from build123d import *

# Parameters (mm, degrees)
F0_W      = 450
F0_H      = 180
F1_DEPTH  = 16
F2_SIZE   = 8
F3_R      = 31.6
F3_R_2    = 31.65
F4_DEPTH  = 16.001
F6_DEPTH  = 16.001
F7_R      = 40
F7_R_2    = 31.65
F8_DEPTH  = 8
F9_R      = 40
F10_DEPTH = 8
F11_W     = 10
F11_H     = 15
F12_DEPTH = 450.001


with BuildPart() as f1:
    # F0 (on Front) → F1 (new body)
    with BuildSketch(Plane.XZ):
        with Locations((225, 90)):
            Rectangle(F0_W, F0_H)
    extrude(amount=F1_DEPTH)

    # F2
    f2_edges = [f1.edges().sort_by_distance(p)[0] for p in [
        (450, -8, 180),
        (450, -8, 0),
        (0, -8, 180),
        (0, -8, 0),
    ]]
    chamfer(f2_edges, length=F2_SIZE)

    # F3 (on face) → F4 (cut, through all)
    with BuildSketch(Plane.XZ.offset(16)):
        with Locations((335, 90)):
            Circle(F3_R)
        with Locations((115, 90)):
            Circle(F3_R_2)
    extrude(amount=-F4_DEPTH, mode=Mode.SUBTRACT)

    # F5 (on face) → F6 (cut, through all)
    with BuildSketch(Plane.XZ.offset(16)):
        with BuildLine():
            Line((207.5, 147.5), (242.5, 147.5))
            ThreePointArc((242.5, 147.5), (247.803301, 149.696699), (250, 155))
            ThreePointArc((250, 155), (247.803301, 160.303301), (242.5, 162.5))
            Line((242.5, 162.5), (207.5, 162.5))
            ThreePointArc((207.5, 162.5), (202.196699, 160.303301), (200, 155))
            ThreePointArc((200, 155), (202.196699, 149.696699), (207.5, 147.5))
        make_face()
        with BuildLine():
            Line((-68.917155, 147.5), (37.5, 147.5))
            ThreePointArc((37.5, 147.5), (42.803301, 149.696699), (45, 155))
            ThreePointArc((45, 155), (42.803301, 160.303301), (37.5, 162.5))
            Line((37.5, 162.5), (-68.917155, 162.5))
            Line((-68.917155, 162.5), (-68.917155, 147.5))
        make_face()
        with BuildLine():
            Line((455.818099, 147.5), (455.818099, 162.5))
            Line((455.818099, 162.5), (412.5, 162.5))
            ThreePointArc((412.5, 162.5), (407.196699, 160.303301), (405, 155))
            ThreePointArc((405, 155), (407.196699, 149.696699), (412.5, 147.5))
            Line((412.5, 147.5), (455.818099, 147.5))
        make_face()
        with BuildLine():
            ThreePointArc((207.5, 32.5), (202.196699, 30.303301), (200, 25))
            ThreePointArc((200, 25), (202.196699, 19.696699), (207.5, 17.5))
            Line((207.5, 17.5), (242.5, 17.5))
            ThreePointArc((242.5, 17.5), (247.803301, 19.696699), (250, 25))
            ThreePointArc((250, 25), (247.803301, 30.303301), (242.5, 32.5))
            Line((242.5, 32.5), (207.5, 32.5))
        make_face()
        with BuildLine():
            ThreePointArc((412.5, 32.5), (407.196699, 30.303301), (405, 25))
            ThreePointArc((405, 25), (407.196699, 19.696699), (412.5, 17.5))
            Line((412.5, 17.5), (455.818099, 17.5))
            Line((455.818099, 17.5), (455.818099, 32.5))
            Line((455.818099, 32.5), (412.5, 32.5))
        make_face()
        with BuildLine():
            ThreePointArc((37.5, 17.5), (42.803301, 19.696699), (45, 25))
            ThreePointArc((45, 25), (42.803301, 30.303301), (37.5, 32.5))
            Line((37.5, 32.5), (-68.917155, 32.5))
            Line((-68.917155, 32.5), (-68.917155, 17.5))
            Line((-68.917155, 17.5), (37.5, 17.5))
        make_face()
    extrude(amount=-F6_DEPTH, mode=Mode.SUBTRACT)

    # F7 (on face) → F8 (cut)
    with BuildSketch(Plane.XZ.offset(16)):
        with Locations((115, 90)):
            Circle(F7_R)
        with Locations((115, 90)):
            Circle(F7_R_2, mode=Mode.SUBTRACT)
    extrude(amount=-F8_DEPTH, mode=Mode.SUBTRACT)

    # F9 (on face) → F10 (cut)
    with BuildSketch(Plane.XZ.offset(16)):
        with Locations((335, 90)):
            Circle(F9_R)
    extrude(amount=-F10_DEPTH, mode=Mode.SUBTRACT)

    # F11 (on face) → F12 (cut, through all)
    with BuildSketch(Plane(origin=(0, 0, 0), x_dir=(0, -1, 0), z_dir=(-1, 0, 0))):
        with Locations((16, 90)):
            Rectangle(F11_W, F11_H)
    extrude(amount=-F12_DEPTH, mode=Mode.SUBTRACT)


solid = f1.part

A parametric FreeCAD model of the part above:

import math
import FreeCAD as App
import Part
import Sketcher
from FreeCAD import Vector
Q = App.Units.Quantity


def edges_at(feature, points):
    """Names of the edges that pass closest to the given points."""
    edges = feature.Shape.Edges
    near = lambda p: min(range(len(edges)), key=lambda i: edges[i].distToShape(Part.Vertex(*p))[0])
    return sorted({f"Edge{near(p) + 1}" for p in points})

doc = App.newDocument("Part")
params = doc.addObject("Spreadsheet::Sheet", "Params")
for row, (alias, value) in enumerate([
    ("sketch1_width", "450 mm"),
    ("sketch1_height", "180 mm"),
    ("pad1_length", "16 mm"),
    ("chamfer_size", "8 mm"),
    ("sketch2_diameter", "63.2 mm"),
    ("sketch2_diameter2", "63.3 mm"),
    ("sketch3_radius", "7.5 mm"),
    ("sketch3_width", "35 mm"),
    ("sketch4_diameter", "80 mm"),
    ("sketch4_diameter2", "63.3 mm"),
    ("pocket3_length", "8 mm"),
    ("sketch5_diameter", "80 mm"),
    ("pocket4_length", "8 mm"),
    ("sketch6_width", "10 mm"),
    ("sketch6_height", "15 mm"),
], start=1):
    params.set(f"A{row}", alias)
    params.set(f"B{row}", "=" + value)
    params.setAlias(f"B{row}", alias)

body = doc.addObject("PartDesign::Body", "Body")

# Sketch on XZ plane
sketch1 = body.newObject("Sketcher::SketchObject", "Sketch")
sketch1.AttachmentSupport = (doc.getObject("XZ_Plane"), [""])
sketch1.MapMode = "FlatFace"
sketch1.addGeometry([
    Part.LineSegment(Vector(0, 180, 0), Vector(0, 0, 0)),
    Part.LineSegment(Vector(0, 0, 0), Vector(450, 0, 0)),
    Part.LineSegment(Vector(450, 0, 0), Vector(450, 180, 0)),
    Part.LineSegment(Vector(450, 180, 0), Vector(0, 180, 0)),
], False)
sketch1.addConstraint([
    Sketcher.Constraint("Coincident", 0, 2, 1, 1),
    Sketcher.Constraint("Coincident", 1, 2, 2, 1),
    Sketcher.Constraint("Coincident", 2, 2, 3, 1),
    Sketcher.Constraint("Coincident", 3, 2, 0, 1),
    Sketcher.Constraint("Vertical", 0),
    Sketcher.Constraint("Horizontal", 1),
    Sketcher.Constraint("Vertical", 2),
    Sketcher.Constraint("Horizontal", 3),
    Sketcher.Constraint("Coincident", 0, 2, -1, 1),
    Sketcher.Constraint("DistanceX", 1, 1, 1, 2, Q("450 mm")),
    Sketcher.Constraint("DistanceY", 0, 2, 0, 1, Q("180 mm")),
])
sketch1.setExpression("Constraints[9]", "Params.sketch1_width")
sketch1.setExpression("Constraints[10]", "Params.sketch1_height")
pad1 = body.newObject("PartDesign::Pad", "Pad")
pad1.Profile = sketch1
pad1.setExpression("Length", "Params.pad1_length")
doc.recompute()

chamfer = body.newObject("PartDesign::Chamfer", "Chamfer")
chamfer.Base = (pad1, edges_at(pad1, [
    (450, -8, 180),
    (450, -8, 0),
    (0, -8, 180),
    (0, -8, 0),
]))
chamfer.setExpression("Size", "Params.chamfer_size")

# Sketch on XZ plane
sketch2 = body.newObject("Sketcher::SketchObject", "Sketch001")
sketch2.AttachmentSupport = (doc.getObject("XZ_Plane"), [""])
sketch2.MapMode = "FlatFace"
sketch2.AttachmentOffset = App.Placement(Vector(0, 0, 16), App.Rotation())
sketch2.addGeometry([
    Part.Circle(Vector(335, 90, 0), Vector(0, 0, 1), 32),
    Part.Circle(Vector(115, 90, 0), Vector(0, 0, 1), 32),
], False)
sketch2.addConstraint([
    Sketcher.Constraint("Horizontal", 0, 3, 1, 3),
    Sketcher.Constraint("Diameter", 0, Q("63.2 mm")),
    Sketcher.Constraint("Diameter", 1, Q("63.3 mm")),
    Sketcher.Constraint("DistanceX", -1, 1, 0, 3, Q("335 mm")),
    Sketcher.Constraint("DistanceY", -1, 1, 0, 3, Q("90 mm")),
    Sketcher.Constraint("DistanceX", -1, 1, 1, 3, Q("115 mm")),
])
sketch2.setExpression("Constraints[1]", "Params.sketch2_diameter")
sketch2.setExpression("Constraints[2]", "Params.sketch2_diameter2")
pocket1 = body.newObject("PartDesign::Pocket", "Pocket")
pocket1.Profile = sketch2
pocket1.Type = "ThroughAll"

# Sketch on XZ plane
sketch3 = body.newObject("Sketcher::SketchObject", "Sketch002")
sketch3.AttachmentSupport = (doc.getObject("XZ_Plane"), [""])
sketch3.MapMode = "FlatFace"
sketch3.AttachmentOffset = App.Placement(Vector(0, 0, 16), App.Rotation())
sketch3.addGeometry([
    Part.LineSegment(Vector(208, 148, 0), Vector(242, 148, 0)),  # 0
    Part.ArcOfCircle(Part.Circle(Vector(243, 155, 0), Vector(0, 0, 1), 7), math.radians(-90), math.radians(0)),  # 1
    Part.ArcOfCircle(Part.Circle(Vector(243, 155, 0), Vector(0, 0, 1), 7), math.radians(0), math.radians(90)),  # 2
    Part.LineSegment(Vector(242, 162, 0), Vector(208, 162, 0)),  # 3
    Part.ArcOfCircle(Part.Circle(Vector(207, 155, 0), Vector(0, 0, 1), 7), math.radians(90), math.radians(180)),  # 4
    Part.ArcOfCircle(Part.Circle(Vector(207, 155, 0), Vector(0, 0, 1), 7), math.radians(180), math.radians(270)),  # 5
    Part.LineSegment(Vector(-69, 148, 0), Vector(38, 148, 0)),  # 6
    Part.ArcOfCircle(Part.Circle(Vector(38, 155, 0), Vector(0, 0, 1), 7), math.radians(-90), math.radians(0)),  # 7
    Part.ArcOfCircle(Part.Circle(Vector(38, 155, 0), Vector(0, 0, 1), 7), math.radians(0), math.radians(90)),  # 8
    Part.LineSegment(Vector(38, 162, 0), Vector(-69, 162, 0)),  # 9
    Part.LineSegment(Vector(-69, 162, 0), Vector(-69, 148, 0)),  # 10
    Part.LineSegment(Vector(456, 148, 0), Vector(456, 162, 0)),  # 11
    Part.LineSegment(Vector(456, 162, 0), Vector(412, 162, 0)),  # 12
    Part.ArcOfCircle(Part.Circle(Vector(412, 155, 0), Vector(0, 0, 1), 7), math.radians(90), math.radians(180)),  # 13
    Part.ArcOfCircle(Part.Circle(Vector(412, 155, 0), Vector(0, 0, 1), 7), math.radians(180), math.radians(270)),  # 14
    Part.LineSegment(Vector(412, 148, 0), Vector(456, 148, 0)),  # 15
    Part.ArcOfCircle(Part.Circle(Vector(207, 25, 0), Vector(0, 0, 1), 7), math.radians(90), math.radians(180)),  # 16
    Part.ArcOfCircle(Part.Circle(Vector(207, 25, 0), Vector(0, 0, 1), 7), math.radians(180), math.radians(270)),  # 17
    Part.LineSegment(Vector(208, 18, 0), Vector(242, 18, 0)),  # 18
    Part.ArcOfCircle(Part.Circle(Vector(243, 25, 0), Vector(0, 0, 1), 7), math.radians(-90), math.radians(0)),  # 19
    Part.ArcOfCircle(Part.Circle(Vector(243, 25, 0), Vector(0, 0, 1), 7), math.radians(0), math.radians(90)),  # 20
    Part.LineSegment(Vector(242, 32, 0), Vector(208, 32, 0)),  # 21
    Part.ArcOfCircle(Part.Circle(Vector(412, 25, 0), Vector(0, 0, 1), 7), math.radians(90), math.radians(180)),  # 22
    Part.ArcOfCircle(Part.Circle(Vector(412, 25, 0), Vector(0, 0, 1), 7), math.radians(180), math.radians(270)),  # 23
    Part.LineSegment(Vector(412, 18, 0), Vector(456, 18, 0)),  # 24
    Part.LineSegment(Vector(456, 18, 0), Vector(456, 32, 0)),  # 25
    Part.LineSegment(Vector(456, 32, 0), Vector(412, 32, 0)),  # 26
    Part.ArcOfCircle(Part.Circle(Vector(38, 25, 0), Vector(0, 0, 1), 7), math.radians(-90), math.radians(0)),  # 27
    Part.ArcOfCircle(Part.Circle(Vector(38, 25, 0), Vector(0, 0, 1), 7), math.radians(0), math.radians(90)),  # 28
    Part.LineSegment(Vector(38, 32, 0), Vector(-69, 32, 0)),  # 29
    Part.LineSegment(Vector(-69, 32, 0), Vector(-69, 18, 0)),  # 30
    Part.LineSegment(Vector(-69, 18, 0), Vector(38, 18, 0)),  # 31
], False)
sketch3.addConstraint([
    Sketcher.Constraint("Tangent", 0, 2, 1, 1),
    Sketcher.Constraint("Tangent", 1, 2, 2, 1),
    Sketcher.Constraint("Tangent", 2, 2, 3, 1),
    Sketcher.Constraint("Tangent", 3, 2, 4, 1),
    Sketcher.Constraint("Tangent", 4, 2, 5, 1),
    Sketcher.Constraint("Tangent", 5, 2, 0, 1),
    Sketcher.Constraint("Tangent", 6, 2, 7, 1),
    Sketcher.Constraint("Tangent", 7, 2, 8, 1),
    Sketcher.Constraint("Tangent", 8, 2, 9, 1),
    Sketcher.Constraint("Coincident", 9, 2, 10, 1),
    Sketcher.Constraint("Coincident", 10, 2, 6, 1),
    Sketcher.Constraint("Coincident", 11, 2, 12, 1),
    Sketcher.Constraint("Tangent", 12, 2, 13, 1),
    Sketcher.Constraint("Tangent", 13, 2, 14, 1),
    Sketcher.Constraint("Tangent", 14, 2, 15, 1),
    Sketcher.Constraint("Coincident", 15, 2, 11, 1),
    Sketcher.Constraint("Tangent", 16, 2, 17, 1),
    Sketcher.Constraint("Tangent", 17, 2, 18, 1),
    Sketcher.Constraint("Tangent", 18, 2, 19, 1),
    Sketcher.Constraint("Tangent", 19, 2, 20, 1),
    Sketcher.Constraint("Tangent", 20, 2, 21, 1),
    Sketcher.Constraint("Tangent", 21, 2, 16, 1),
    Sketcher.Constraint("Tangent", 22, 2, 23, 1),
    Sketcher.Constraint("Tangent", 23, 2, 24, 1),
    Sketcher.Constraint("Coincident", 24, 2, 25, 1),
    Sketcher.Constraint("Coincident", 25, 2, 26, 1),
    Sketcher.Constraint("Tangent", 26, 2, 22, 1),
    Sketcher.Constraint("Tangent", 27, 2, 28, 1),
    Sketcher.Constraint("Tangent", 28, 2, 29, 1),
    Sketcher.Constraint("Coincident", 29, 2, 30, 1),
    Sketcher.Constraint("Coincident", 30, 2, 31, 1),
    Sketcher.Constraint("Tangent", 31, 2, 27, 1),
    Sketcher.Constraint("Horizontal", 0),
    Sketcher.Constraint("Horizontal", 3),
    Sketcher.Constraint("Horizontal", 6),
    Sketcher.Constraint("Horizontal", 9),
    Sketcher.Constraint("Vertical", 10),
    Sketcher.Constraint("Vertical", 11),
    Sketcher.Constraint("Horizontal", 12),
    Sketcher.Constraint("Horizontal", 15),
    Sketcher.Constraint("Horizontal", 18),
    Sketcher.Constraint("Horizontal", 21),
    Sketcher.Constraint("Horizontal", 24),
    Sketcher.Constraint("Vertical", 25),
    Sketcher.Constraint("Horizontal", 26),
    Sketcher.Constraint("Horizontal", 29),
    Sketcher.Constraint("Vertical", 30),
    Sketcher.Constraint("Horizontal", 31),
    Sketcher.Constraint("Equal", 1, 2),
    Sketcher.Constraint("Equal", 2, 4),
    Sketcher.Constraint("Equal", 5, 7),
    Sketcher.Constraint("Equal", 7, 8),
    Sketcher.Constraint("Equal", 8, 13),
    Sketcher.Constraint("Equal", 13, 14),
    Sketcher.Constraint("Equal", 14, 16),
    Sketcher.Constraint("Equal", 16, 17),
    Sketcher.Constraint("Equal", 17, 19),
    Sketcher.Constraint("Equal", 20, 22),
    Sketcher.Constraint("Equal", 22, 23),
    Sketcher.Constraint("Equal", 23, 27),
    Sketcher.Constraint("Equal", 27, 28),
    Sketcher.Constraint("Horizontal", 5, 3, 7, 3),
    Sketcher.Constraint("Horizontal", 8, 3, 13, 3),
    Sketcher.Constraint("Horizontal", 20, 3, 22, 3),
    Sketcher.Constraint("Horizontal", 23, 3, 27, 3),
    Sketcher.Constraint("Horizontal", 14, 3, 1, 2),
    Sketcher.Constraint("Horizontal", 1, 2, 4, 2),
    Sketcher.Constraint("Horizontal", 4, 2, 7, 2),
    Sketcher.Constraint("Horizontal", 7, 2, 13, 2),
    Sketcher.Constraint("Horizontal", 28, 3, 16, 2),
    Sketcher.Constraint("Horizontal", 16, 2, 19, 2),
    Sketcher.Constraint("Horizontal", 19, 2, 22, 2),
    Sketcher.Constraint("Horizontal", 22, 2, 27, 2),
    Sketcher.Constraint("Vertical", 5, 3, 16, 3),
    Sketcher.Constraint("Vertical", 2, 3, 19, 3),
    Sketcher.Constraint("Vertical", 14, 3, 22, 3),
    Sketcher.Constraint("Vertical", 8, 3, 27, 3),
    Sketcher.Constraint("Vertical", 15, 2, 24, 2),
    Sketcher.Constraint("Vertical", 10, 2, 29, 2),
    Sketcher.Constraint("Radius", 1, Q("7.5 mm")),
    Sketcher.Constraint("DistanceX", 0, 1, 0, 2, Q("35 mm")),
    Sketcher.Constraint("DistanceY", -1, 1, 1, 3, Q("155 mm")),
    Sketcher.Constraint("DistanceY", -1, 1, 16, 3, Q("25 mm")),
    Sketcher.Constraint("DistanceX", -1, 1, 1, 2, Q("250 mm")),
    Sketcher.Constraint("DistanceX", -1, 1, 7, 2, Q("45 mm")),
    Sketcher.Constraint("DistanceX", -1, 1, 13, 2, Q("405 mm")),
    Sketcher.Constraint("DistanceX", 12, 2, 12, 1, Q("43.318099 mm")),
    Sketcher.Constraint("DistanceX", 6, 1, 6, 2, Q("106.417155 mm")),
])
sketch3.setExpression("Constraints[79]", "Params.sketch3_radius")
sketch3.setExpression("Constraints[80]", "Params.sketch3_width")
pocket2 = body.newObject("PartDesign::Pocket", "Pocket001")
pocket2.Profile = sketch3
pocket2.Type = "ThroughAll"

# Sketch on XZ plane
sketch4 = body.newObject("Sketcher::SketchObject", "Sketch003")
sketch4.AttachmentSupport = (doc.getObject("XZ_Plane"), [""])
sketch4.MapMode = "FlatFace"
sketch4.AttachmentOffset = App.Placement(Vector(0, 0, 16), App.Rotation())
sketch4.addGeometry([
    Part.Circle(Vector(115, 90, 0), Vector(0, 0, 1), 40),
    Part.Circle(Vector(115, 90, 0), Vector(0, 0, 1), 32),
], False)
sketch4.addConstraint([
    Sketcher.Constraint("Coincident", 1, 3, 0, 3),
    Sketcher.Constraint("Diameter", 0, Q("80 mm")),
    Sketcher.Constraint("Diameter", 1, Q("63.3 mm")),
    Sketcher.Constraint("DistanceX", -1, 1, 0, 3, Q("115 mm")),
    Sketcher.Constraint("DistanceY", -1, 1, 0, 3, Q("90 mm")),
])
sketch4.setExpression("Constraints[1]", "Params.sketch4_diameter")
sketch4.setExpression("Constraints[2]", "Params.sketch4_diameter2")
pocket3 = body.newObject("PartDesign::Pocket", "Pocket002")
pocket3.Profile = sketch4
pocket3.setExpression("Length", "Params.pocket3_length")

# Sketch on XZ plane
sketch5 = body.newObject("Sketcher::SketchObject", "Sketch004")
sketch5.AttachmentSupport = (doc.getObject("XZ_Plane"), [""])
sketch5.MapMode = "FlatFace"
sketch5.AttachmentOffset = App.Placement(Vector(0, 0, 16), App.Rotation())
sketch5.addGeometry(Part.Circle(Vector(335, 90, 0), Vector(0, 0, 1), 40), False)
sketch5.addConstraint([
    Sketcher.Constraint("Diameter", 0, Q("80 mm")),
    Sketcher.Constraint("DistanceX", -1, 1, 0, 3, Q("335 mm")),
    Sketcher.Constraint("DistanceY", -1, 1, 0, 3, Q("90 mm")),
])
sketch5.setExpression("Constraints[0]", "Params.sketch5_diameter")
pocket4 = body.newObject("PartDesign::Pocket", "Pocket003")
pocket4.Profile = sketch5
pocket4.setExpression("Length", "Params.pocket4_length")

# Sketch on YZ plane
sketch6 = body.newObject("Sketcher::SketchObject", "Sketch005")
sketch6.AttachmentSupport = (doc.getObject("YZ_Plane"), [""])
sketch6.MapMode = "FlatFace"
sketch6.addGeometry([
    Part.LineSegment(Vector(-11, 98, 0), Vector(-11, 82, 0)),
    Part.LineSegment(Vector(-11, 82, 0), Vector(-21, 82, 0)),
    Part.LineSegment(Vector(-21, 82, 0), Vector(-21, 98, 0)),
    Part.LineSegment(Vector(-21, 98, 0), Vector(-11, 98, 0)),
], False)
sketch6.addConstraint([
    Sketcher.Constraint("Coincident", 0, 2, 1, 1),
    Sketcher.Constraint("Coincident", 1, 2, 2, 1),
    Sketcher.Constraint("Coincident", 2, 2, 3, 1),
    Sketcher.Constraint("Coincident", 3, 2, 0, 1),
    Sketcher.Constraint("Vertical", 0),
    Sketcher.Constraint("Horizontal", 1),
    Sketcher.Constraint("Vertical", 2),
    Sketcher.Constraint("Horizontal", 3),
    Sketcher.Constraint("DistanceX", 1, 2, 1, 1, Q("10 mm")),
    Sketcher.Constraint("DistanceY", 0, 2, 0, 1, Q("15 mm")),
    Sketcher.Constraint("DistanceX", 0, 2, -1, 1, Q("11 mm")),
    Sketcher.Constraint("DistanceY", -1, 1, 0, 2, Q("82.5 mm")),
])
sketch6.setExpression("Constraints[8]", "Params.sketch6_width")
sketch6.setExpression("Constraints[9]", "Params.sketch6_height")
pocket5 = body.newObject("PartDesign::Pocket", "Pocket004")
pocket5.Profile = sketch6
pocket5.Type = "ThroughAll"
pocket5.Reversed = True

doc.recompute()
